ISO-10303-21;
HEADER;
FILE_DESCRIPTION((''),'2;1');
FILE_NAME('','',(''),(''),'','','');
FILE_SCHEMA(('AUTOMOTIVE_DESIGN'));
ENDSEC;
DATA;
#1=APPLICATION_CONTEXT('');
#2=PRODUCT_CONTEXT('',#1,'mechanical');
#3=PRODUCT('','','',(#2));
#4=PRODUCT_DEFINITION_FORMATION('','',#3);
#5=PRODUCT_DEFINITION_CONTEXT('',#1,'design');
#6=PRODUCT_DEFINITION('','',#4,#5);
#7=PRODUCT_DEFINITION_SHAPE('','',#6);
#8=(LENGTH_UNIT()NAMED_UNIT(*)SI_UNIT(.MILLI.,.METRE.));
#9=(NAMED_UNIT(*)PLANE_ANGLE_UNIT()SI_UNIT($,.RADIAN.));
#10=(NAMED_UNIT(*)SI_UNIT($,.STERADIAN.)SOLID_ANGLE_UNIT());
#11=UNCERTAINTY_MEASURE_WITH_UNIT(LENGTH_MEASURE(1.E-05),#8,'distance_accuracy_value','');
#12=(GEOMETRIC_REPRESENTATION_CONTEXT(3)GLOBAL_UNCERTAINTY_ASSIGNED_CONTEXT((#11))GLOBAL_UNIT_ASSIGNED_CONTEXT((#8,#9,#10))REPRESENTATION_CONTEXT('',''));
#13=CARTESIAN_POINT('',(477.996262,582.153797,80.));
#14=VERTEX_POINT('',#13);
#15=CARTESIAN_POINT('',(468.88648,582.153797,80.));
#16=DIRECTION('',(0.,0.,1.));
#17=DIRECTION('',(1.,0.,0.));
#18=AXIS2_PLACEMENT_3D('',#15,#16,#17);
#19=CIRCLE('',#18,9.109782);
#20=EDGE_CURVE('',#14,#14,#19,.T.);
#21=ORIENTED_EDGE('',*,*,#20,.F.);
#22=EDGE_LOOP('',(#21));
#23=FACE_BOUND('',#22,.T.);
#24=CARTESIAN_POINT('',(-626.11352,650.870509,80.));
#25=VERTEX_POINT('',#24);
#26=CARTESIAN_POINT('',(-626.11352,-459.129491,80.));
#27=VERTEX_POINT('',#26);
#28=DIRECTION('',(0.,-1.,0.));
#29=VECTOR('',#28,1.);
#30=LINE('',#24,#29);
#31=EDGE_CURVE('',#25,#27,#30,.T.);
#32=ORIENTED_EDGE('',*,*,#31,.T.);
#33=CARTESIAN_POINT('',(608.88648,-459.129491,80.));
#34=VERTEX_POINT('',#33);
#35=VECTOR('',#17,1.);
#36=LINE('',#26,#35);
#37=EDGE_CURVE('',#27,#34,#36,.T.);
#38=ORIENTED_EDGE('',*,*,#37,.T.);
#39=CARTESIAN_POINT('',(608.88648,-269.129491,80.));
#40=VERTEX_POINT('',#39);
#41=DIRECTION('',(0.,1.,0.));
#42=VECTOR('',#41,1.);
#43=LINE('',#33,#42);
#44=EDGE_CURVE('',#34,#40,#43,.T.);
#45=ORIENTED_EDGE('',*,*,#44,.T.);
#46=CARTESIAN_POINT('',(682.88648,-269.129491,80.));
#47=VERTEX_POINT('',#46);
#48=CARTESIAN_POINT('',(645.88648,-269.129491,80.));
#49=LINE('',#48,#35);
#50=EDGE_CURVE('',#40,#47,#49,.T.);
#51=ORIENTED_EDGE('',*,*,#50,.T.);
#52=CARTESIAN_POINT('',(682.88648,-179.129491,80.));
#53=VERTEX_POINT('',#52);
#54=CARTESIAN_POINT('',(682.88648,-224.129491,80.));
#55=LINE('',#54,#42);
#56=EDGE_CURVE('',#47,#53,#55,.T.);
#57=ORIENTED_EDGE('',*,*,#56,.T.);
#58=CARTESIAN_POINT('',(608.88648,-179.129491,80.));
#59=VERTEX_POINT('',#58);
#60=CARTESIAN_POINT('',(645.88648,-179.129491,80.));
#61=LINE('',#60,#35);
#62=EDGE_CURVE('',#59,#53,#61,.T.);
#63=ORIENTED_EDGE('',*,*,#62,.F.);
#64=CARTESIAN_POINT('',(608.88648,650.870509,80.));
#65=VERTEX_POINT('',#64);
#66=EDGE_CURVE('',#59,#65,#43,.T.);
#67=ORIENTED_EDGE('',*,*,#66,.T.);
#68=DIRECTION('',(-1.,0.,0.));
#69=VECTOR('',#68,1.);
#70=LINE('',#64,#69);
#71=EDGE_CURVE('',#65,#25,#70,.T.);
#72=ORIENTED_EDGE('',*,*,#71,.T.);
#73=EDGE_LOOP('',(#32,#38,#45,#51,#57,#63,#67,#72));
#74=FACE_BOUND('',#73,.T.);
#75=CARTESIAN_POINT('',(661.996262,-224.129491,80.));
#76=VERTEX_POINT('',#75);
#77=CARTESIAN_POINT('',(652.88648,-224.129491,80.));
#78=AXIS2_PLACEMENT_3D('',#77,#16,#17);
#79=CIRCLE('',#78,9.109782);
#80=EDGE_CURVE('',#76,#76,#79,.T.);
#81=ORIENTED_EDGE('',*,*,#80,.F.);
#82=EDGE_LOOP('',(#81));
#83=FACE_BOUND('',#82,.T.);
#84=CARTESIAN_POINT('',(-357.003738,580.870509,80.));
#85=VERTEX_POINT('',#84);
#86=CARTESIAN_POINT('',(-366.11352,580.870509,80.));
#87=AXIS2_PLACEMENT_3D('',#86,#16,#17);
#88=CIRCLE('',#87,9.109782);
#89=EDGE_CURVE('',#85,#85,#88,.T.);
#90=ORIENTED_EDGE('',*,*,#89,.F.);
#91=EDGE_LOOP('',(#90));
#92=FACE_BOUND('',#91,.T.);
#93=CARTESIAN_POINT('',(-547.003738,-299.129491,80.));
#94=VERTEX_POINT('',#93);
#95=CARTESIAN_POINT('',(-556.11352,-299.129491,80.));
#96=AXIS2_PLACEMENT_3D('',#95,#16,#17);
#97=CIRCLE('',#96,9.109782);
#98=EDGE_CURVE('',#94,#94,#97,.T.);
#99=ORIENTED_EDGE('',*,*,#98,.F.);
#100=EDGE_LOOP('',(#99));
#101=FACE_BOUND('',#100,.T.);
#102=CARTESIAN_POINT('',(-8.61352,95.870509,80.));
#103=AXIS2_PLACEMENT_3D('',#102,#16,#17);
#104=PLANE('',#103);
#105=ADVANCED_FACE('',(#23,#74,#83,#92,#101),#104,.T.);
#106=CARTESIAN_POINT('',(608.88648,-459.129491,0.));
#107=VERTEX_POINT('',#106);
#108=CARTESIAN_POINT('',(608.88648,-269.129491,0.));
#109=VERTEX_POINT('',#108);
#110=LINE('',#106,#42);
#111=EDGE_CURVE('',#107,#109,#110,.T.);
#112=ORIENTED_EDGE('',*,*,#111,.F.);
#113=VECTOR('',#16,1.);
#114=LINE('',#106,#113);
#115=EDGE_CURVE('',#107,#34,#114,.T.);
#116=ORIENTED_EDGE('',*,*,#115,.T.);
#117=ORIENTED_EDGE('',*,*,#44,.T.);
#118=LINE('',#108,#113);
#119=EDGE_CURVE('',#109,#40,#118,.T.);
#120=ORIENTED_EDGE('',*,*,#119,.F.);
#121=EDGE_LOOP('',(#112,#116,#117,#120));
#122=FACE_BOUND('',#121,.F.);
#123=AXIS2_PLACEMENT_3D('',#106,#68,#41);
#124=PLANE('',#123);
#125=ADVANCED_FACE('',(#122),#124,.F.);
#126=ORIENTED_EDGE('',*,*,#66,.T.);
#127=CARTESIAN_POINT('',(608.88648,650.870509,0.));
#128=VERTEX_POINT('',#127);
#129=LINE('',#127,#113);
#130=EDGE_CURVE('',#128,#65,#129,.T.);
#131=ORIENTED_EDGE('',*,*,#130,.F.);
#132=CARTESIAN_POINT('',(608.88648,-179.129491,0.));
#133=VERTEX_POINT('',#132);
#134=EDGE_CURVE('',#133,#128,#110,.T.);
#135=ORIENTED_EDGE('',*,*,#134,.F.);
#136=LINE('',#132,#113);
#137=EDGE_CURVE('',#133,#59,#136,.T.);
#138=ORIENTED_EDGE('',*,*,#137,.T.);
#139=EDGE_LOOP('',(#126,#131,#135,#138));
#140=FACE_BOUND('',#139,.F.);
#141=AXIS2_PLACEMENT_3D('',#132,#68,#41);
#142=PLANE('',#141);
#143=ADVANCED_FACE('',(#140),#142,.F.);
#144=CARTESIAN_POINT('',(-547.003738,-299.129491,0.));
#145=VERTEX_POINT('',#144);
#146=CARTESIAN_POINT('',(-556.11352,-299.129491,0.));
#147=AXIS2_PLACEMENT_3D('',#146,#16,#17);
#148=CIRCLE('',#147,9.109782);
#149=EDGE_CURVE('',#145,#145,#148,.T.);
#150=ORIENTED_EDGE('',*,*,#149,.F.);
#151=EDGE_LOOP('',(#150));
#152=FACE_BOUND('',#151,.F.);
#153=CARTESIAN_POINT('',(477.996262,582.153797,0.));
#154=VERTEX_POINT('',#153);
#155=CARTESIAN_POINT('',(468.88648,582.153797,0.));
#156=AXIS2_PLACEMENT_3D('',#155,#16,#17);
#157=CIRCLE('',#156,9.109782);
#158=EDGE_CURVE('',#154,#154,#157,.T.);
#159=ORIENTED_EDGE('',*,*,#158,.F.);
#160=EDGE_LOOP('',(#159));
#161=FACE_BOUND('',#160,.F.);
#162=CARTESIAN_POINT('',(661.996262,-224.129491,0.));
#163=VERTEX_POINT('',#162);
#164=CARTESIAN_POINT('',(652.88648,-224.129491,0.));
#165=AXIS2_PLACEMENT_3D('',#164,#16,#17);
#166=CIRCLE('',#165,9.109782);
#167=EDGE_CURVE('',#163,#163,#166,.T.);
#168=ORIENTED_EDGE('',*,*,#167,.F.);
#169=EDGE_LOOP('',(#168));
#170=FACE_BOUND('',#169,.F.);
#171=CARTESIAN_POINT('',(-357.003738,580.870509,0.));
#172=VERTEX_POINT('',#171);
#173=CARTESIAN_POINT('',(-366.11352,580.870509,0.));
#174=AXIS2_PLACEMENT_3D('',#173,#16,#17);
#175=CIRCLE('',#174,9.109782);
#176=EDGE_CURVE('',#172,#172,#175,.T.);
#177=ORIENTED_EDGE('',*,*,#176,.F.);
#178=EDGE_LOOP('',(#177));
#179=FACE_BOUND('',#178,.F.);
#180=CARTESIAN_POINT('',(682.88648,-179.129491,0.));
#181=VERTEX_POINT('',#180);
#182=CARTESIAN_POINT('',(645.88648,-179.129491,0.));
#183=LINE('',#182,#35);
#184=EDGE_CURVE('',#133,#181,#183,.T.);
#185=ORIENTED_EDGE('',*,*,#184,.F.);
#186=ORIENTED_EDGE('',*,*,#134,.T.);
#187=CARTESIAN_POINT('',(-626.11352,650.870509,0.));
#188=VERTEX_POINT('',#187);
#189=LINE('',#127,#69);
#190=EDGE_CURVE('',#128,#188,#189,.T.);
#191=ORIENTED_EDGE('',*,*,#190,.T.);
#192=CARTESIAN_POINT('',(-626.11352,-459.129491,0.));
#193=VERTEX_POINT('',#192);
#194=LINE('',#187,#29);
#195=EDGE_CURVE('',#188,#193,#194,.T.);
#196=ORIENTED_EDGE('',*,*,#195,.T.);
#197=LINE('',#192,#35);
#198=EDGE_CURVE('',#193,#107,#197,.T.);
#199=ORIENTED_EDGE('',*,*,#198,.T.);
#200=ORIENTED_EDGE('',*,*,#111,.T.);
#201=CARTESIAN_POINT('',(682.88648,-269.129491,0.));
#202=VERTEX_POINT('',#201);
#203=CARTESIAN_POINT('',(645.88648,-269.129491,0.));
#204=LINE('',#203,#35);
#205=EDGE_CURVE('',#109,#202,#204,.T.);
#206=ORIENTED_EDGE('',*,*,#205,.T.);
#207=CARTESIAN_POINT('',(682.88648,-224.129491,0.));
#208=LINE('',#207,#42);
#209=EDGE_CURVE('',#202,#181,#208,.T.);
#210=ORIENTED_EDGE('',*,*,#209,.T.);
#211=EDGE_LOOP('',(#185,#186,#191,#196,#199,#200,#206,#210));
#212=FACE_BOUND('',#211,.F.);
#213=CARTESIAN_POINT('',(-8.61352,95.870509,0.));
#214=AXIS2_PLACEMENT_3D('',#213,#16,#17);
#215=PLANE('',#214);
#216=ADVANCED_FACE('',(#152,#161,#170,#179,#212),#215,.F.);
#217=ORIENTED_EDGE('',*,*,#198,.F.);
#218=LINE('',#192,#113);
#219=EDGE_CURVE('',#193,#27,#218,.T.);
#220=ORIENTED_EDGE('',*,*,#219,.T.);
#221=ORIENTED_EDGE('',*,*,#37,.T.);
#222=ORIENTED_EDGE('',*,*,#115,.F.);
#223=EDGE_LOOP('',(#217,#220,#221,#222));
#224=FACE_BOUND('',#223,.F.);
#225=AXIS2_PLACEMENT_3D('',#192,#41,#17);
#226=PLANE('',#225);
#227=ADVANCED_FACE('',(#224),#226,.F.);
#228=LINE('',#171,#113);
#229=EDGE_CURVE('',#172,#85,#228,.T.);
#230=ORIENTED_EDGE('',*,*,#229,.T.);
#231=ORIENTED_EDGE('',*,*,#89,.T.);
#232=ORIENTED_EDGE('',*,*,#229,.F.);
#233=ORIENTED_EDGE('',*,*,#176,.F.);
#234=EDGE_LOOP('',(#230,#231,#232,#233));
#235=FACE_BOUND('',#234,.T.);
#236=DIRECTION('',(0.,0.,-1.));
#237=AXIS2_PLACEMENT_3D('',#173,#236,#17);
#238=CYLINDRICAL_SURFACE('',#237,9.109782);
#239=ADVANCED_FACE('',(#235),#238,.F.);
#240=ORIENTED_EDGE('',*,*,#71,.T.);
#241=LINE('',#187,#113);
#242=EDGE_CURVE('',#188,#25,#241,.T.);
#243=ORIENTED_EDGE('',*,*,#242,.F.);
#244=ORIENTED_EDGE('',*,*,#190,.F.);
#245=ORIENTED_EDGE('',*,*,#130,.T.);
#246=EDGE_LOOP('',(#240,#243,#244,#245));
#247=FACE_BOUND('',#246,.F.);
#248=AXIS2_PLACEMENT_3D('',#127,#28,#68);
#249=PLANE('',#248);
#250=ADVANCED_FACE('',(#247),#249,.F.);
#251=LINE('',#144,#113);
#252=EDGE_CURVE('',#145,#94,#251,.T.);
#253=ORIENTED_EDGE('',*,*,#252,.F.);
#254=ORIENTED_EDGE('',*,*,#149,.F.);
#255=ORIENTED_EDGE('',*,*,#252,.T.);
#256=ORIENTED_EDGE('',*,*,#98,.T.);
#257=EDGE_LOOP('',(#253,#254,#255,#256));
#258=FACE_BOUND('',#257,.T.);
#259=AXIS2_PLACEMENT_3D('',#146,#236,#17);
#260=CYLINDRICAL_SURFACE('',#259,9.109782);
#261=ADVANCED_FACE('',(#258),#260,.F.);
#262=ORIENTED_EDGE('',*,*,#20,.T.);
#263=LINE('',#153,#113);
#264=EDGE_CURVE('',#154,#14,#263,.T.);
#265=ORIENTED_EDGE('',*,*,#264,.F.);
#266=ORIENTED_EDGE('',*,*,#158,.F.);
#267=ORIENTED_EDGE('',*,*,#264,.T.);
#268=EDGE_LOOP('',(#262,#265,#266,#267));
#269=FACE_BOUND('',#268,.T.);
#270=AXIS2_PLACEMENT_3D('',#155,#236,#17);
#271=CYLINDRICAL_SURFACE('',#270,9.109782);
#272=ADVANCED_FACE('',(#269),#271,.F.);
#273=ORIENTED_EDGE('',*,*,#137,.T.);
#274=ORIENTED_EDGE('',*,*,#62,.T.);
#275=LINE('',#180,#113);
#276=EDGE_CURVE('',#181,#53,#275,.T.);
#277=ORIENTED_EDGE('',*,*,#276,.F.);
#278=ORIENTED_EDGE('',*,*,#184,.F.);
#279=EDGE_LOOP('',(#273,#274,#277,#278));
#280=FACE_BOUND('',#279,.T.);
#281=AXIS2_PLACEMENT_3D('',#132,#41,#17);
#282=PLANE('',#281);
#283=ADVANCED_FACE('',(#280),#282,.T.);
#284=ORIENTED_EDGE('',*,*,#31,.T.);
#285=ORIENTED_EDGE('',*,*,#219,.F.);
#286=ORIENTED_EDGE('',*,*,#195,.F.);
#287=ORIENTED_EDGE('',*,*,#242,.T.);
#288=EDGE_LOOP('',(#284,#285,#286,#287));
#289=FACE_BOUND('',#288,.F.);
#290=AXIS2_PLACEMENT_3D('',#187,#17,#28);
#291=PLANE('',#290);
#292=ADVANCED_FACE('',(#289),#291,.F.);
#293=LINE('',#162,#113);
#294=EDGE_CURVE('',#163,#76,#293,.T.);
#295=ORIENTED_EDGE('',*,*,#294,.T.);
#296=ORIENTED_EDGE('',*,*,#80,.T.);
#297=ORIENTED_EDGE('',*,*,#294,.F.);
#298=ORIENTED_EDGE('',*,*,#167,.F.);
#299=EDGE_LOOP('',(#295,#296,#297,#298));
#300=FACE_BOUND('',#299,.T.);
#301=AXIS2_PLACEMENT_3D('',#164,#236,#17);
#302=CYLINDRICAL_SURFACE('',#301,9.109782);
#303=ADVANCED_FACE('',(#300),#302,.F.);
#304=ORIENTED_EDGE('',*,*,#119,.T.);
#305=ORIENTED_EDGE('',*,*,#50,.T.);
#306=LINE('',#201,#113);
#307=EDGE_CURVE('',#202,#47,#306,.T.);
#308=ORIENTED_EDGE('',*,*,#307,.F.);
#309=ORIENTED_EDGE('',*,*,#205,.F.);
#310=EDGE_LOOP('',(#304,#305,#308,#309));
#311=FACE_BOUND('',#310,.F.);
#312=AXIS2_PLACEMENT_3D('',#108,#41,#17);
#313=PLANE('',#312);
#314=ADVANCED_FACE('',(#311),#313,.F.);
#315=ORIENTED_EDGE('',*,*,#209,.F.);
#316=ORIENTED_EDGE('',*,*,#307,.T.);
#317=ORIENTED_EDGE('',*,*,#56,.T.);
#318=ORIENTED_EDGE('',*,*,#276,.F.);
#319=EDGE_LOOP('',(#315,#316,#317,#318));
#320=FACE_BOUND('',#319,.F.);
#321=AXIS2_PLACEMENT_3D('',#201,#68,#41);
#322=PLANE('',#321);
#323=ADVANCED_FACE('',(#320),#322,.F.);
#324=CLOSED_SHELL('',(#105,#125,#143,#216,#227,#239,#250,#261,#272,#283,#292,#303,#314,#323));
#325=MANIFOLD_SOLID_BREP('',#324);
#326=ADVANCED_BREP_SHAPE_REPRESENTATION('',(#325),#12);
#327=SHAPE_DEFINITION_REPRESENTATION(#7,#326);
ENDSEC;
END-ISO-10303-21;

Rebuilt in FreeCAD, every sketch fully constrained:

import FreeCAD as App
import Part
import Sketcher
from FreeCAD import Vector

doc = App.newDocument("Part")
body = doc.addObject("PartDesign::Body", "Body")

# Sketch on XY plane
sketch1 = body.newObject("Sketcher::SketchObject", "Sketch")
sketch1.AttachmentSupport = (doc.getObject("XY_Plane"), [""])
sketch1.MapMode = "FlatFace"
sketch1.addGeometry(Part.LineSegment(Vector(609, 651, 0), Vector(-626, 651, 0)), False)
sketch1.addGeometry(Part.LineSegment(Vector(-626, 651, 0), Vector(-626, -459, 0)), False)
sketch1.addGeometry(Part.LineSegment(Vector(-626, -459, 0), Vector(609, -459, 0)), False)
sketch1.addGeometry(Part.LineSegment(Vector(609, -459, 0), Vector(609, -269, 0)), False)
sketch1.addGeometry(Part.LineSegment(Vector(609, -269, 0), Vector(683, -269, 0)), False)
sketch1.addGeometry(Part.LineSegment(Vector(683, -269, 0), Vector(683, -179, 0)), False)
sketch1.addGeometry(Part.LineSegment(Vector(683, -179, 0), Vector(609, -179, 0)), False)
sketch1.addGeometry(Part.LineSegment(Vector(609, -179, 0), Vector(609, 651, 0)), False)
sketch1.addGeometry(Part.Circle(Vector(-556, -299, 0), Vector(0, 0, 1), 9), False)
sketch1.addGeometry(Part.Circle(Vector(653, -224, 0), Vector(0, 0, 1), 9), False)
sketch1.addGeometry(Part.Circle(Vector(-366, 581, 0), Vector(0, 0, 1), 9), False)
sketch1.addGeometry(Part.Circle(Vector(469, 582, 0), Vector(0, 0, 1), 9), False)
sketch1.addConstraint(Sketcher.Constraint("Coincident", 0, 2, 1, 1))
sketch1.addConstraint(Sketcher.Constraint("Coincident", 1, 2, 2, 1))
sketch1.addConstraint(Sketcher.Constraint("Coincident", 2, 2, 3, 1))
sketch1.addConstraint(Sketcher.Constraint("Coincident", 3, 2, 4, 1))
sketch1.addConstraint(Sketcher.Constraint("Coincident", 4, 2, 5, 1))
sketch1.addConstraint(Sketcher.Constraint("Coincident", 5, 2, 6, 1))
sketch1.addConstraint(Sketcher.Constraint("Coincident", 6, 2, 7, 1))
sketch1.addConstraint(Sketcher.Constraint("Coincident", 7, 2, 0, 1))
sketch1.addConstraint(Sketcher.Constraint("Horizontal", 0))
sketch1.addConstraint(Sketcher.Constraint("Vertical", 1))
sketch1.addConstraint(Sketcher.Constraint("Horizontal", 2))
sketch1.addConstraint(Sketcher.Constraint("Vertical", 3))
sketch1.addConstraint(Sketcher.Constraint("Horizontal", 4))
sketch1.addConstraint(Sketcher.Constraint("Vertical", 5))
sketch1.addConstraint(Sketcher.Constraint("Horizontal", 6))
sketch1.addConstraint(Sketcher.Constraint("Vertical", 7))
sketch1.addConstraint(Sketcher.Constraint("Equal", 8, 9))
sketch1.addConstraint(Sketcher.Constraint("Equal", 9, 10))
sketch1.addConstraint(Sketcher.Constraint("Equal", 10, 11))
sketch1.addConstraint(Sketcher.Constraint("Vertical", 3, 2, 6, 2))
sketch1.addConstraint(Sketcher.Constraint("DistanceX", 0, 2, 0, 1, 1235.0))
sketch1.addConstraint(Sketcher.Constraint("DistanceX", 4, 1, 4, 2, 74.0))
sketch1.addConstraint(Sketcher.Constraint("DistanceY", 1, 2, 1, 1, 1110.0))
sketch1.addConstraint(Sketcher.Constraint("DistanceY", 3, 1, 3, 2, 190.0))
sketch1.addConstraint(Sketcher.Constraint("DistanceY", 5, 1, 5, 2, 90.0))
sketch1.addConstraint(Sketcher.Constraint("DistanceX", 8, 3, 9, 3, 1209.0))
sketch1.addConstraint(Sketcher.Constraint("DistanceY", 8, 3, 9, 3, 75.0))
sketch1.addConstraint(Sketcher.Constraint("DistanceX", 8, 3, 10, 3, 190.0))
sketch1.addConstraint(Sketcher.Constraint("DistanceY", 8, 3, 10, 3, 880.0))
sketch1.addConstraint(Sketcher.Constraint("DistanceX", 11, 3, 9, 3, 184.0))
sketch1.addConstraint(Sketcher.Constraint("DistanceX", 0, 2, 10, 3, 260.0))
sketch1.addConstraint(Sketcher.Constraint("DistanceY", 10, 3, 0, 2, 70.0))
sketch1.addConstraint(Sketcher.Constraint("Diameter", 8, 18.219564))
sketch1.addConstraint(Sketcher.Constraint("DistanceX", 8, 3, -1, 1, 556.11352))
sketch1.addConstraint(Sketcher.Constraint("DistanceY", 8, 3, -1, 1, 299.129491))
sketch1.addConstraint(Sketcher.Constraint("DistanceY", 9, 3, 11, 3, 806.283288))
pad1 = body.newObject("PartDesign::Pad", "Pad")
pad1.Profile = sketch1
pad1.Length = 80

doc.recompute()
